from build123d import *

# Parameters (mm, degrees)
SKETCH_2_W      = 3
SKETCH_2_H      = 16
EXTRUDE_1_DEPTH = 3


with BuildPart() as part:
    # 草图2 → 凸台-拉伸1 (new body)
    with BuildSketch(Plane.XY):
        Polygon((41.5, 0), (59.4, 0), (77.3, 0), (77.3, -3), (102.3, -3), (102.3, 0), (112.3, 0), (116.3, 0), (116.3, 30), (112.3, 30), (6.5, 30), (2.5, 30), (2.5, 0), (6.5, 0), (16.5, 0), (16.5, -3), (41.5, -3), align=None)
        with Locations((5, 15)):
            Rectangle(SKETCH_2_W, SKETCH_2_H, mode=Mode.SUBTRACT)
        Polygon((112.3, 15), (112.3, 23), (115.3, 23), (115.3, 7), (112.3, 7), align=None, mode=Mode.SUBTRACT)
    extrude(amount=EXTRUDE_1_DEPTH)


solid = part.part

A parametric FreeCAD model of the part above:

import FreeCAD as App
import Part
import Sketcher

V = App.Vector
Q = App.Units.Quantity


def add_polygon(sketch, points):
    """Adds a closed chain of lines whose ends are joined by coincident constraints."""
    first, n = sketch.GeometryCount, len(points)
    for a, b in zip(points, points[1:] + points[:1]):
        sketch.addGeometry(Part.LineSegment(App.Vector(*a, 0), App.Vector(*b, 0)), False)
    for i in range(n):
        sketch.addConstraint(Sketcher.Constraint("Coincident", first + i, 2, first + (i + 1) % n, 1))

doc = App.newDocument("Part")
body = doc.addObject("PartDesign::Body", "Body")

# Sketch on XY plane
sketch1 = body.newObject("Sketcher::SketchObject", "Sketch")
sketch1.AttachmentSupport = (doc.getObject("XY_Plane"), [""])
sketch1.MapMode = "FlatFace"
add_polygon(sketch1, [(41.5, 0), (77.3, 0), (77.3, -3), (102.3, -3), (102.3, 0), (116.3, 0), (116.3, 30), (2.5, 30), (2.5, 0), (16.5, 0), (16.5, -3), (41.5, -3)])  # lines 0-11
add_polygon(sketch1, [(6.5, 7), (3.5, 7), (3.5, 23), (6.5, 23)])  # lines 12-15
add_polygon(sketch1, [(112.3, 7), (112.3, 23), (115.3, 23), (115.3, 7)])  # lines 16-19
sketch1.addConstraint(Sketcher.Constraint("Horizontal", 0))
sketch1.addConstraint(Sketcher.Constraint("Vertical", 1))
sketch1.addConstraint(Sketcher.Constraint("Horizontal", 2))
sketch1.addConstraint(Sketcher.Constraint("Vertical", 3))
sketch1.addConstraint(Sketcher.Constraint("Horizontal", 4))
sketch1.addConstraint(Sketcher.Constraint("Vertical", 5))
sketch1.addConstraint(Sketcher.Constraint("Horizontal", 6))
sketch1.addConstraint(Sketcher.Constraint("Vertical", 7))
sketch1.addConstraint(Sketcher.Constraint("Horizontal", 8))
sketch1.addConstraint(Sketcher.Constraint("Vertical", 9))
sketch1.addConstraint(Sketcher.Constraint("Horizontal", 10))
sketch1.addConstraint(Sketcher.Constraint("Vertical", 11))
sketch1.addConstraint(Sketcher.Constraint("Horizontal", 12))
sketch1.addConstraint(Sketcher.Constraint("Vertical", 13))
sketch1.addConstraint(Sketcher.Constraint("Horizontal", 14))
sketch1.addConstraint(Sketcher.Constraint("Vertical", 15))
sketch1.addConstraint(Sketcher.Constraint("Vertical", 16))
sketch1.addConstraint(Sketcher.Constraint("Horizontal", 17))
sketch1.addConstraint(Sketcher.Constraint("Vertical", 18))
sketch1.addConstraint(Sketcher.Constraint("Horizontal", 19))
sketch1.addConstraint(Sketcher.Constraint("PointOnObject", 0, 2, -1))
sketch1.addConstraint(Sketcher.Constraint("PointOnObject", 3, 2, -1))
sketch1.addConstraint(Sketcher.Constraint("PointOnObject", 7, 2, -1))
sketch1.addConstraint(Sketcher.Constraint("Horizontal", 2, 2, 9, 2))
sketch1.addConstraint(Sketcher.Constraint("Horizontal", 14, 2, 16, 2))
sketch1.addConstraint(Sketcher.Constraint("Horizontal", 15, 2, 18, 2))
sketch1.addConstraint(Sketcher.Constraint("Equal", 4, 8))
sketch1.addConstraint(Sketcher.Constraint("Equal", 2, 10))
sketch1.addConstraint(Sketcher.Constraint("Equal", 14, 17))
sketch1.addConstraint(Sketcher.Constraint("Equal", 19, 1))
sketch1.addConstraint(Sketcher.Constraint("DistanceX", 2, 1, 2, 2, Q("25 mm")))
sketch1.addConstraint(Sketcher.Constraint("DistanceX", 4, 1, 4, 2, Q("14 mm")))
sketch1.addConstraint(Sketcher.Constraint("DistanceX", 12, 2, 12, 1, Q("3 mm")))
sketch1.addConstraint(Sketcher.Constraint("DistanceY", 5, 1, 5, 2, Q("30 mm")))
sketch1.addConstraint(Sketcher.Constraint("DistanceY", 13, 1, 13, 2, Q("16 mm")))
sketch1.addConstraint(Sketcher.Constraint("DistanceX", 0, 1, 0, 2, Q("35.8 mm")))
sketch1.addConstraint(Sketcher.Constraint("DistanceY", -1, 1, 12, 2, Q("7 mm")))
sketch1.addConstraint(Sketcher.Constraint("DistanceX", 7, 2, 12, 2, Q("1 mm")))
sketch1.addConstraint(Sketcher.Constraint("DistanceX", 16, 2, 5, 2, Q("4 mm")))
sketch1.addConstraint(Sketcher.Constraint("DistanceX", -1, 1, 0, 2, Q("77.3 mm")))
pad1 = body.newObject("PartDesign::Pad", "Pad")
pad1.Profile = sketch1
pad1.Length = 3

doc.recompute()
